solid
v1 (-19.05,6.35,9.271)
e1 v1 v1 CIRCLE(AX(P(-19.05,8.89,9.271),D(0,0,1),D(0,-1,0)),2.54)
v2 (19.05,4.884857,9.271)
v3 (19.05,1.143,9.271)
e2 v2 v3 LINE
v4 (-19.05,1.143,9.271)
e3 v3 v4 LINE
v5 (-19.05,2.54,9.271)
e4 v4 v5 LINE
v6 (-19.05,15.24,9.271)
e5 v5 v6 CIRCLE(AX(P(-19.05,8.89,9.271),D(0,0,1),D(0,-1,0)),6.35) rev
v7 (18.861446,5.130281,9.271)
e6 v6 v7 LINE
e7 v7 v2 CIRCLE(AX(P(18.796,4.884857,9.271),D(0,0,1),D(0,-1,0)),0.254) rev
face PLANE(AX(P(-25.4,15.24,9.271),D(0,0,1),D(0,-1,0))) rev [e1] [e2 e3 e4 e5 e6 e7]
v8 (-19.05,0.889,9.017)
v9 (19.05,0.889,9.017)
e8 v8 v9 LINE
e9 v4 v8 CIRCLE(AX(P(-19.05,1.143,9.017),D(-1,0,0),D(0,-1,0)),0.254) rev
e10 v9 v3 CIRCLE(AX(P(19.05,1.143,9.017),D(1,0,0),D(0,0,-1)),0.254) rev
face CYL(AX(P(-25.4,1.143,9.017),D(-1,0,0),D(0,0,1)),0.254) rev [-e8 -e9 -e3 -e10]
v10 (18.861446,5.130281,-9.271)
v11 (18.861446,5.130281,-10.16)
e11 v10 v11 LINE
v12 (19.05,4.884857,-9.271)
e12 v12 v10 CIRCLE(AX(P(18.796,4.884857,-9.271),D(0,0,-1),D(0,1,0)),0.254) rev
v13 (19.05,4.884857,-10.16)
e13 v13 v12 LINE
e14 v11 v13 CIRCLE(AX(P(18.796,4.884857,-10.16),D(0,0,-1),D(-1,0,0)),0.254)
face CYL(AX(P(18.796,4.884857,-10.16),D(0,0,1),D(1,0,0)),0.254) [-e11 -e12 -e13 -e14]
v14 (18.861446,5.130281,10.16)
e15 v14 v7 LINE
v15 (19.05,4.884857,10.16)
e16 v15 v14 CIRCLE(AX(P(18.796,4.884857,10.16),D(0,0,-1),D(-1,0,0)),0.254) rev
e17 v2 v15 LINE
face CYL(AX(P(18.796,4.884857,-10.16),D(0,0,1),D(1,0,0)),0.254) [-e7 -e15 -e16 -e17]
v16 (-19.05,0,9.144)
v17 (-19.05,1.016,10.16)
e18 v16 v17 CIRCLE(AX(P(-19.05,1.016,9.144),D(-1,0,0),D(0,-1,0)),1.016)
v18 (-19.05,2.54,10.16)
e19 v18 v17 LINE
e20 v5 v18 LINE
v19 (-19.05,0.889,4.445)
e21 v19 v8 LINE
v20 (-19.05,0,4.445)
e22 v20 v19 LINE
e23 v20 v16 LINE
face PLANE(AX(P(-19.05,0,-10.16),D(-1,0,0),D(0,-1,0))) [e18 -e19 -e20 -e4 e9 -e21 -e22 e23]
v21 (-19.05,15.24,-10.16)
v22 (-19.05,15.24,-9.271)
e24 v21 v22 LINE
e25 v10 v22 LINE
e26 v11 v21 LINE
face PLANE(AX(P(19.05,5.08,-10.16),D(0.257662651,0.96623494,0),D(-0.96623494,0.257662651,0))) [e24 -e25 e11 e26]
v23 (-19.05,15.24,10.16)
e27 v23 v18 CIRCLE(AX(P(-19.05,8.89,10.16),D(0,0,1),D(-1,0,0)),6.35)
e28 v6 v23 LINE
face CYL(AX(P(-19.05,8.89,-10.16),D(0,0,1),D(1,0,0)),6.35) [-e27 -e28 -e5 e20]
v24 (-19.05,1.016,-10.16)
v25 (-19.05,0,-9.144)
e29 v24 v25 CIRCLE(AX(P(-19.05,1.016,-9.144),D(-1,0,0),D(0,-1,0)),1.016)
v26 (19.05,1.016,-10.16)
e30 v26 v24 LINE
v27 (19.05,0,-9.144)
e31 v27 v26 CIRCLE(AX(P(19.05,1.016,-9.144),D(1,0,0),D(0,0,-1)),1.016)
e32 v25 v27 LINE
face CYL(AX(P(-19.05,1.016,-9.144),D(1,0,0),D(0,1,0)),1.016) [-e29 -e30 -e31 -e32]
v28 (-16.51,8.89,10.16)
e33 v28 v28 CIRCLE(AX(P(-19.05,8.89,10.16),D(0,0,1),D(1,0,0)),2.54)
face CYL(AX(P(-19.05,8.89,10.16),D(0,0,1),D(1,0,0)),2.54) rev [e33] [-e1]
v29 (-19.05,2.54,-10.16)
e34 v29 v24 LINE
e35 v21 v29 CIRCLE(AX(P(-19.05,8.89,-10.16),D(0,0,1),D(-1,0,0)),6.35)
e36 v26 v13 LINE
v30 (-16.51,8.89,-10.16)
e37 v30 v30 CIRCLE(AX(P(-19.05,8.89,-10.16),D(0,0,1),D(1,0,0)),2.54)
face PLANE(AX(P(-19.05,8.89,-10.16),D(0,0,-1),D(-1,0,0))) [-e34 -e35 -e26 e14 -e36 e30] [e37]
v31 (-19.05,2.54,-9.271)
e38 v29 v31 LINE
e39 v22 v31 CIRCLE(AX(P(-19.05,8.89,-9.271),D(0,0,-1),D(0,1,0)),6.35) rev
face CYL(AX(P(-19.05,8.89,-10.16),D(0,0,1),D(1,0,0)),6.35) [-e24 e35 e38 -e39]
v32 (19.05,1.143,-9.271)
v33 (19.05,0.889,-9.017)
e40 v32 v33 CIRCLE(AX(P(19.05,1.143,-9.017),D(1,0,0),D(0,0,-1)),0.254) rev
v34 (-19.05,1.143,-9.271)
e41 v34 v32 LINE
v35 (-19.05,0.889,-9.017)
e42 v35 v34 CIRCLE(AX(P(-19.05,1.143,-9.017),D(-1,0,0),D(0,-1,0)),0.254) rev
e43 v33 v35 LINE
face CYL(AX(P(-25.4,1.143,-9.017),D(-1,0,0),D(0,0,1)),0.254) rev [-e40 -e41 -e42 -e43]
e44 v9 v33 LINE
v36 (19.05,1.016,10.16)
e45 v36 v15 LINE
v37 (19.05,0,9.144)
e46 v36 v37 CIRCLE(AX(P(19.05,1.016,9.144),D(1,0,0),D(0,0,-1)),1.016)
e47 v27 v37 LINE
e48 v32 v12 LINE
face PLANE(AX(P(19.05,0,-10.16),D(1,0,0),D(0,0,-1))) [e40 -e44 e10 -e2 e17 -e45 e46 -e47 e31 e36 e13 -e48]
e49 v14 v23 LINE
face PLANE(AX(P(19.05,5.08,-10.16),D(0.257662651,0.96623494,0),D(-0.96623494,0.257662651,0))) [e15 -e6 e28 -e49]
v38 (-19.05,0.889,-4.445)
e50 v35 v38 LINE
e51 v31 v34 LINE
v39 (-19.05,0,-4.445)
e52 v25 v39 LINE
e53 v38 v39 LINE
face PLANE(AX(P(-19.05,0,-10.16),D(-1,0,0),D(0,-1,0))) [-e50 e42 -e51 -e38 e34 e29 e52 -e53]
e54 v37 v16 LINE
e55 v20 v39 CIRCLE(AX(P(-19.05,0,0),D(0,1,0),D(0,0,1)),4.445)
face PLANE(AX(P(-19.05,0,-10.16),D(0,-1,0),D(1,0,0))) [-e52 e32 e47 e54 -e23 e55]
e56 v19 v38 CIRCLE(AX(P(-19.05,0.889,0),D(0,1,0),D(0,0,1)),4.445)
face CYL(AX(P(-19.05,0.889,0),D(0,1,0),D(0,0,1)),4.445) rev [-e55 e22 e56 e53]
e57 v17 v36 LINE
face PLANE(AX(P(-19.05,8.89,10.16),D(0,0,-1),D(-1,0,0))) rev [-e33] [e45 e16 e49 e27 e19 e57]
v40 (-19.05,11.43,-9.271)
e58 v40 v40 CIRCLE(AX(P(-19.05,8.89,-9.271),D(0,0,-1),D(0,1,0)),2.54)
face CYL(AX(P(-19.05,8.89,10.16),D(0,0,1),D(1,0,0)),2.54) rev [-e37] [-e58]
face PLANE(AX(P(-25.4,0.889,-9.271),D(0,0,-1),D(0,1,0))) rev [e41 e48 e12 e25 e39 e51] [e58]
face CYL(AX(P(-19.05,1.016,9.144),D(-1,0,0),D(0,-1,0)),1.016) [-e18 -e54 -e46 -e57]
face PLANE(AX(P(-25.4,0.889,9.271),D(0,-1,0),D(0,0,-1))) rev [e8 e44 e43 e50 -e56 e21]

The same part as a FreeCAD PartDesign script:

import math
import FreeCAD as App
import Part
import Sketcher
Q = App.Units.Quantity


def edges_at(feature, points):
    """Names of the edges that pass closest to the given points."""
    edges = feature.Shape.Edges
    near = lambda p: min(range(len(edges)), key=lambda i: edges[i].distToShape(Part.Vertex(*p))[0])
    return sorted({f"Edge{near(p) + 1}" for p in points})


def add_polygon(sketch, points):
    """Adds a closed chain of lines whose ends are joined by coincident constraints."""
    first, n = sketch.GeometryCount, len(points)
    for a, b in zip(points, points[1:] + points[:1]):
        sketch.addGeometry(Part.LineSegment(App.Vector(*a, 0), App.Vector(*b, 0)), False)
    for i in range(n):
        sketch.addConstraint(Sketcher.Constraint("Coincident", first + i, 2, first + (i + 1) % n, 1))

doc = App.newDocument("Part")
body = doc.addObject("PartDesign::Body", "Body")

# Sketch on XY plane
sketch1 = doc.addObject("Sketcher::SketchObject", "Sketch")
body.addObject(sketch1)
sketch1.AttachmentSupport = (doc.XY_Plane, [""])
sketch1.MapMode = "FlatFace"
sketch1.addGeometry([
    Part.LineSegment(App.Vector(-19.1, 0, 0), App.Vector(19.1, 0, 0)),  # 0
    Part.LineSegment(App.Vector(19.1, 0, 0), App.Vector(19.1, 5.1, 0)),  # 1
    Part.LineSegment(App.Vector(19.1, 5.1, 0), App.Vector(-19.1, 15.2, 0)),  # 2
    Part.ArcOfCircle(Part.Circle(App.Vector(-19.1, 8.9, 0), App.Vector(0, 0, 1), 6.3), math.radians(90), math.radians(270)),  # 3
    Part.LineSegment(App.Vector(-19.1, 2.5, 0), App.Vector(-19.1, 0, 0)),  # 4
], False)
sketch1.addConstraint([
    Sketcher.Constraint("Coincident", 0, 2, 1, 1),
    Sketcher.Constraint("Coincident", 1, 2, 2, 1),
    Sketcher.Constraint("Coincident", 2, 2, 3, 1),
    Sketcher.Constraint("Coincident", 3, 2, 4, 1),
    Sketcher.Constraint("Coincident", 4, 2, 0, 1),
    Sketcher.Constraint("Horizontal", 0),
    Sketcher.Constraint("Vertical", 1),
    Sketcher.Constraint("Vertical", 4),
    Sketcher.Constraint("Symmetric", 0, 2, 4, 2, -1, 1),
    Sketcher.Constraint("Vertical", 3, 3, 2, 2),
    Sketcher.Constraint("Vertical", 2, 2, 3, 2),
    Sketcher.Constraint("Radius", 3, Q("0.25 in")),
    Sketcher.Constraint("DistanceX", 0, 1, 0, 2, Q("1.5 in")),
    Sketcher.Constraint("DistanceY", 1, 1, 1, 2, Q("0.2 in")),
    Sketcher.Constraint("DistanceY", 4, 2, 4, 1, Q("0.1 in")),
])
pad1 = doc.addObject("PartDesign::Pad", "Pad")
body.addObject(pad1)
pad1.Profile = sketch1
pad1.Type = "TwoLengths"
pad1.Length = Q("0.4 in")
pad1.Length2 = Q("0.4 in")

# Sketch on YZ plane
sketch2 = doc.addObject("Sketcher::SketchObject", "Sketch001")
body.addObject(sketch2)
sketch2.AttachmentSupport = (doc.YZ_Plane, [""])
sketch2.MapMode = "FlatFace"
add_polygon(sketch2, [(15, 9), (1, 9), (1, -9), (15, -9)])  # lines 0-3
sketch2.addConstraint([
    Sketcher.Constraint("Horizontal", 0),
    Sketcher.Constraint("Vertical", 1),
    Sketcher.Constraint("Horizontal", 2),
    Sketcher.Constraint("Vertical", 3),
    Sketcher.Constraint("DistanceY", 1, 2, 1, 1, Q("0.73 in")),
    Sketcher.Constraint("DistanceX", -1, 1, 2, 2, Q("0.6 in")),
    Sketcher.Constraint("DistanceX", 0, 2, 0, 1, Q("0.565 in")),
    Sketcher.Constraint("DistanceY", -1, 1, 0, 2, Q("0.365 in")),
])
pocket1 = doc.addObject("PartDesign::Pocket", "Pocket")
body.addObject(pocket1)
pocket1.Profile = sketch2
pocket1.Type = "ThroughAll"
pocket1.Midplane = True

# Sketch on XY plane
sketch3 = doc.addObject("Sketcher::SketchObject", "Sketch002")
body.addObject(sketch3)
sketch3.AttachmentSupport = (doc.XY_Plane, [""])
sketch3.MapMode = "FlatFace"
sketch3.AttachmentOffset = App.Placement(App.Vector(0, 0, 0.4 * 25.4), App.Rotation())
sketch3.addGeometry(Part.Circle(App.Vector(-19.1, 8.9, 0), App.Vector(0, 0, 1), 2.5), False)
sketch3.addConstraint([
    Sketcher.Constraint("Diameter", 0, Q("0.2 in")),
    Sketcher.Constraint("DistanceX", 0, 3, -1, 1, Q("0.75 in")),
    Sketcher.Constraint("DistanceY", -1, 1, 0, 3, Q("0.35 in")),
])
doc.recompute()
hole = doc.addObject("PartDesign::Hole", "Hole")
body.addObject(hole)
hole.Profile = sketch3
hole.ThreadType = "None"
hole.Diameter = Q("0.2 in")
hole.DepthType = "ThroughAll"

# Sketch on XZ plane
sketch4 = doc.addObject("Sketcher::SketchObject", "Sketch003")
body.addObject(sketch4)
sketch4.AttachmentSupport = (doc.XZ_Plane, [""])
sketch4.MapMode = "FlatFace"
sketch4.AttachmentOffset = App.Placement(App.Vector(0, 0, -0.035 * 25.4), App.Rotation())
sketch4.addGeometry(Part.Circle(App.Vector(-19.1, 0, 0), App.Vector(0, 0, 1), 4.4), False)
sketch4.addConstraint([
    Sketcher.Constraint("PointOnObject", 0, 3, -1),
    Sketcher.Constraint("Diameter", 0, Q("0.35 in")),
    Sketcher.Constraint("DistanceX", 0, 3, -1, 1, Q("0.75 in")),
])
doc.recompute()
hole2 = doc.addObject("PartDesign::Hole", "Hole001")
body.addObject(hole2)
hole2.Profile = sketch4
hole2.ThreadType = "None"
hole2.Diameter = Q("0.35 in")
hole2.DepthType = "ThroughAll"
hole2.Reversed = True
doc.recompute()

fillet = doc.addObject("PartDesign::Fillet", "Fillet")
body.addObject(fillet)
fillet.Base = (hole2, edges_at(hole2, [
    (19.05, 5.08, 9.716),
    (0, 0.889, -9.271),
    (0, 0.889, 9.271),
    (19.05, 5.08, -9.716),
]))
fillet.Radius = Q("0.01 in")
doc.recompute()

fillet2 = doc.addObject("PartDesign::Fillet", "Fillet001")
body.addObject(fillet2)
fillet2.Base = (fillet, edges_at(fillet, [(0, 0, 10.16), (0, 0, -10.16)]))
fillet2.Radius = Q("0.04 in")

doc.recompute()
